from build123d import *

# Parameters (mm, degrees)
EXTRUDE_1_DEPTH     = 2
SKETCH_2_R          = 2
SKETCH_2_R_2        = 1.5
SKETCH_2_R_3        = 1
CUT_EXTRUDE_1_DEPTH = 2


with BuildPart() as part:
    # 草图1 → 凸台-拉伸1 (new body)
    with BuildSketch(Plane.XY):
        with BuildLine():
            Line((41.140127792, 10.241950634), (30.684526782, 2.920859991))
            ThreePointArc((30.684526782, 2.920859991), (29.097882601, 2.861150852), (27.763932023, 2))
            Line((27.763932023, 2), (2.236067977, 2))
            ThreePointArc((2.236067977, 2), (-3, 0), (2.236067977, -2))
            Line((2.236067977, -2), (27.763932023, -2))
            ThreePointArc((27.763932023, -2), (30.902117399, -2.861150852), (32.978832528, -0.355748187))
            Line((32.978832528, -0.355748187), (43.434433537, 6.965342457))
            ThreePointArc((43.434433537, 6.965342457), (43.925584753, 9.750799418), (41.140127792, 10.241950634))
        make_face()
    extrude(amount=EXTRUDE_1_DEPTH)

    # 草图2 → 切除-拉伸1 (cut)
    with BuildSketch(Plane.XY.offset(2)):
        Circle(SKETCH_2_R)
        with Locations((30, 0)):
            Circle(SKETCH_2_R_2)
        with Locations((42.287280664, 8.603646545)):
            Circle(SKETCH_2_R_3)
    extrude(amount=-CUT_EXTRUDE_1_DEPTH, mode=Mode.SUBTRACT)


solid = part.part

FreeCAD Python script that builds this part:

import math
import FreeCAD as App
import Part
import Sketcher
from FreeCAD import Vector
Q = App.Units.Quantity

doc = App.newDocument("Part")
body = doc.addObject("PartDesign::Body", "Body")

# Sketch on XY plane
sketch1 = body.newObject("Sketcher::SketchObject", "Sketch")
sketch1.AttachmentSupport = (doc.getObject("XY_Plane"), [""])
sketch1.MapMode = "FlatFace"
sketch1.addGeometry([
    Part.LineSegment(Vector(41.1, 10.2, 0), Vector(30.7, 2.9, 0)),  # 0
    Part.ArcOfCircle(Part.Circle(Vector(30, 0, 0), Vector(0, 0, 1), 3), math.radians(77), math.radians(138)),  # 1
    Part.LineSegment(Vector(27.8, 2, 0), Vector(2.2, 2, 0)),  # 2
    Part.ArcOfCircle(Part.Circle(Vector(0, 0, 0), Vector(0, 0, 1), 3), math.radians(42), math.radians(318)),  # 3
    Part.LineSegment(Vector(2.2, -2, 0), Vector(27.8, -2, 0)),  # 4
    Part.ArcOfCircle(Part.Circle(Vector(30, 0, 0), Vector(0, 0, 1), 3), math.radians(-138), math.radians(-7)),  # 5
    Part.LineSegment(Vector(33, -0.4, 0), Vector(43.4, 7, 0)),  # 6
    Part.ArcOfCircle(Part.Circle(Vector(42.3, 8.6, 0), Vector(0, 0, 1), 2), math.radians(-55), math.radians(125)),  # 7
], False)
sketch1.addConstraint([
    Sketcher.Constraint("Coincident", 0, 2, 1, 1),
    Sketcher.Constraint("Coincident", 1, 2, 2, 1),
    Sketcher.Constraint("Coincident", 2, 2, 3, 1),
    Sketcher.Constraint("Coincident", 3, 2, 4, 1),
    Sketcher.Constraint("Coincident", 4, 2, 5, 1),
    Sketcher.Constraint("Coincident", 5, 2, 6, 1),
    Sketcher.Constraint("Tangent", 6, 2, 7, 1),
    Sketcher.Constraint("Tangent", 7, 2, 0, 1),
    Sketcher.Constraint("Horizontal", 2),
    Sketcher.Constraint("Horizontal", 4),
    Sketcher.Constraint("Coincident", 3, 3, -1, 1),
    Sketcher.Constraint("Coincident", 5, 3, 1, 3),
    Sketcher.Constraint("Equal", 1, 3),
    Sketcher.Constraint("Equal", 3, 5),
    Sketcher.Constraint("Symmetric", 1, 2, 4, 2, -1),
    Sketcher.Constraint("Parallel", 0, 6),
    Sketcher.Constraint("Equal", 0, 6),
    Sketcher.Constraint("Radius", 1, Q("3 mm")),
    Sketcher.Constraint("Radius", 7, Q("2 mm")),
    Sketcher.Constraint("Angle", 0, Q("-145 deg")),
    Sketcher.Constraint("DistanceX", -1, 1, 1, 3, Q("30 mm")),
    Sketcher.Constraint("DistanceY", -1, 1, 1, 2, Q("2 mm")),
    Sketcher.Constraint("DistanceX", 5, 2, 6, 2, Q("10.455601 mm")),
])
pad1 = body.newObject("PartDesign::Pad", "Pad")
pad1.Profile = sketch1
pad1.Length = 2

# Sketch on XY plane
sketch2 = body.newObject("Sketcher::SketchObject", "Sketch001")
sketch2.AttachmentSupport = (doc.getObject("XY_Plane"), [""])
sketch2.MapMode = "FlatFace"
sketch2.AttachmentOffset = App.Placement(Vector(0, 0, 2), App.Rotation())
sketch2.addGeometry([
    Part.Circle(Vector(0, 0, 0), Vector(0, 0, 1), 2),
    Part.Circle(Vector(30, 0, 0), Vector(0, 0, 1), 1.5),
    Part.Circle(Vector(42.3, 8.6, 0), Vector(0, 0, 1), 1),
], False)
sketch2.addConstraint([
    Sketcher.Constraint("Coincident", 0, 3, -1, 1),
    Sketcher.Constraint("PointOnObject", 1, 3, -1),
    Sketcher.Constraint("Diameter", 0, Q("4 mm")),
    Sketcher.Constraint("Diameter", 1, Q("3 mm")),
    Sketcher.Constraint("Diameter", 2, Q("2 mm")),
    Sketcher.Constraint("DistanceX", -1, 1, 1, 3, Q("30 mm")),
    Sketcher.Constraint("DistanceX", -1, 1, 2, 3, Q("42.287281 mm")),
    Sketcher.Constraint("DistanceY", -1, 1, 2, 3, Q("8.603647 mm")),
])
pocket1 = body.newObject("PartDesign::Pocket", "Pocket")
pocket1.Profile = sketch2
pocket1.Length = 2

doc.recompute()
